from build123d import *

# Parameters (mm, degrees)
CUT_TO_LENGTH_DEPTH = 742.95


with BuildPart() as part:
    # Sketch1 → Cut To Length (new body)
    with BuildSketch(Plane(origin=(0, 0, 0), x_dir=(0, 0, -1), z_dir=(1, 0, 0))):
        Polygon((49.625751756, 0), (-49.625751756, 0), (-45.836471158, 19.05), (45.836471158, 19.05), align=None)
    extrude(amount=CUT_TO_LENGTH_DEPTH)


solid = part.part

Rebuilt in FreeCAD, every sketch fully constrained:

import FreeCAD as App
import Part
import Sketcher
from FreeCAD import Vector
Q = App.Units.Quantity


def add_polygon(sketch, points):
    """Adds a closed chain of lines whose ends are joined by coincident constraints."""
    first, n = sketch.GeometryCount, len(points)
    for a, b in zip(points, points[1:] + points[:1]):
        sketch.addGeometry(Part.LineSegment(App.Vector(*a, 0), App.Vector(*b, 0)), False)
    for i in range(n):
        sketch.addConstraint(Sketcher.Constraint("Coincident", first + i, 2, first + (i + 1) % n, 1))

doc = App.newDocument("Part")
body = doc.addObject("PartDesign::Body", "Body")

sketch1 = body.newObject("Sketcher::SketchObject", "Sketch")
sketch1.AttachmentSupport = (doc.getObject("YZ_Plane"), [""])
sketch1.MapMode = "FlatFace"
add_polygon(sketch1, [(0, 50), (0, -50), (19, -46), (19, 46)])
sketch1.addConstraint(Sketcher.Constraint("Vertical", 0))
sketch1.addConstraint(Sketcher.Constraint("Vertical", 2))
sketch1.addConstraint(Sketcher.Constraint("Symmetric", 0, 2, 3, 2, -1, 1))
sketch1.addConstraint(Sketcher.Constraint("Equal", 1, 3))
sketch1.addConstraint(Sketcher.Constraint("DistanceX", -1, 1, 1, 2, Q("0.75 in")))
sketch1.addConstraint(Sketcher.Constraint("Angle", 1, Q("11.25 deg")))
sketch1.addConstraint(Sketcher.Constraint("DistanceY", 0, 2, 0, 1, 99.251504))
pad1 = body.newObject("PartDesign::Pad", "Pad")
pad1.Profile = sketch1
pad1.Length = Q("29.25 in")

doc.recompute()
